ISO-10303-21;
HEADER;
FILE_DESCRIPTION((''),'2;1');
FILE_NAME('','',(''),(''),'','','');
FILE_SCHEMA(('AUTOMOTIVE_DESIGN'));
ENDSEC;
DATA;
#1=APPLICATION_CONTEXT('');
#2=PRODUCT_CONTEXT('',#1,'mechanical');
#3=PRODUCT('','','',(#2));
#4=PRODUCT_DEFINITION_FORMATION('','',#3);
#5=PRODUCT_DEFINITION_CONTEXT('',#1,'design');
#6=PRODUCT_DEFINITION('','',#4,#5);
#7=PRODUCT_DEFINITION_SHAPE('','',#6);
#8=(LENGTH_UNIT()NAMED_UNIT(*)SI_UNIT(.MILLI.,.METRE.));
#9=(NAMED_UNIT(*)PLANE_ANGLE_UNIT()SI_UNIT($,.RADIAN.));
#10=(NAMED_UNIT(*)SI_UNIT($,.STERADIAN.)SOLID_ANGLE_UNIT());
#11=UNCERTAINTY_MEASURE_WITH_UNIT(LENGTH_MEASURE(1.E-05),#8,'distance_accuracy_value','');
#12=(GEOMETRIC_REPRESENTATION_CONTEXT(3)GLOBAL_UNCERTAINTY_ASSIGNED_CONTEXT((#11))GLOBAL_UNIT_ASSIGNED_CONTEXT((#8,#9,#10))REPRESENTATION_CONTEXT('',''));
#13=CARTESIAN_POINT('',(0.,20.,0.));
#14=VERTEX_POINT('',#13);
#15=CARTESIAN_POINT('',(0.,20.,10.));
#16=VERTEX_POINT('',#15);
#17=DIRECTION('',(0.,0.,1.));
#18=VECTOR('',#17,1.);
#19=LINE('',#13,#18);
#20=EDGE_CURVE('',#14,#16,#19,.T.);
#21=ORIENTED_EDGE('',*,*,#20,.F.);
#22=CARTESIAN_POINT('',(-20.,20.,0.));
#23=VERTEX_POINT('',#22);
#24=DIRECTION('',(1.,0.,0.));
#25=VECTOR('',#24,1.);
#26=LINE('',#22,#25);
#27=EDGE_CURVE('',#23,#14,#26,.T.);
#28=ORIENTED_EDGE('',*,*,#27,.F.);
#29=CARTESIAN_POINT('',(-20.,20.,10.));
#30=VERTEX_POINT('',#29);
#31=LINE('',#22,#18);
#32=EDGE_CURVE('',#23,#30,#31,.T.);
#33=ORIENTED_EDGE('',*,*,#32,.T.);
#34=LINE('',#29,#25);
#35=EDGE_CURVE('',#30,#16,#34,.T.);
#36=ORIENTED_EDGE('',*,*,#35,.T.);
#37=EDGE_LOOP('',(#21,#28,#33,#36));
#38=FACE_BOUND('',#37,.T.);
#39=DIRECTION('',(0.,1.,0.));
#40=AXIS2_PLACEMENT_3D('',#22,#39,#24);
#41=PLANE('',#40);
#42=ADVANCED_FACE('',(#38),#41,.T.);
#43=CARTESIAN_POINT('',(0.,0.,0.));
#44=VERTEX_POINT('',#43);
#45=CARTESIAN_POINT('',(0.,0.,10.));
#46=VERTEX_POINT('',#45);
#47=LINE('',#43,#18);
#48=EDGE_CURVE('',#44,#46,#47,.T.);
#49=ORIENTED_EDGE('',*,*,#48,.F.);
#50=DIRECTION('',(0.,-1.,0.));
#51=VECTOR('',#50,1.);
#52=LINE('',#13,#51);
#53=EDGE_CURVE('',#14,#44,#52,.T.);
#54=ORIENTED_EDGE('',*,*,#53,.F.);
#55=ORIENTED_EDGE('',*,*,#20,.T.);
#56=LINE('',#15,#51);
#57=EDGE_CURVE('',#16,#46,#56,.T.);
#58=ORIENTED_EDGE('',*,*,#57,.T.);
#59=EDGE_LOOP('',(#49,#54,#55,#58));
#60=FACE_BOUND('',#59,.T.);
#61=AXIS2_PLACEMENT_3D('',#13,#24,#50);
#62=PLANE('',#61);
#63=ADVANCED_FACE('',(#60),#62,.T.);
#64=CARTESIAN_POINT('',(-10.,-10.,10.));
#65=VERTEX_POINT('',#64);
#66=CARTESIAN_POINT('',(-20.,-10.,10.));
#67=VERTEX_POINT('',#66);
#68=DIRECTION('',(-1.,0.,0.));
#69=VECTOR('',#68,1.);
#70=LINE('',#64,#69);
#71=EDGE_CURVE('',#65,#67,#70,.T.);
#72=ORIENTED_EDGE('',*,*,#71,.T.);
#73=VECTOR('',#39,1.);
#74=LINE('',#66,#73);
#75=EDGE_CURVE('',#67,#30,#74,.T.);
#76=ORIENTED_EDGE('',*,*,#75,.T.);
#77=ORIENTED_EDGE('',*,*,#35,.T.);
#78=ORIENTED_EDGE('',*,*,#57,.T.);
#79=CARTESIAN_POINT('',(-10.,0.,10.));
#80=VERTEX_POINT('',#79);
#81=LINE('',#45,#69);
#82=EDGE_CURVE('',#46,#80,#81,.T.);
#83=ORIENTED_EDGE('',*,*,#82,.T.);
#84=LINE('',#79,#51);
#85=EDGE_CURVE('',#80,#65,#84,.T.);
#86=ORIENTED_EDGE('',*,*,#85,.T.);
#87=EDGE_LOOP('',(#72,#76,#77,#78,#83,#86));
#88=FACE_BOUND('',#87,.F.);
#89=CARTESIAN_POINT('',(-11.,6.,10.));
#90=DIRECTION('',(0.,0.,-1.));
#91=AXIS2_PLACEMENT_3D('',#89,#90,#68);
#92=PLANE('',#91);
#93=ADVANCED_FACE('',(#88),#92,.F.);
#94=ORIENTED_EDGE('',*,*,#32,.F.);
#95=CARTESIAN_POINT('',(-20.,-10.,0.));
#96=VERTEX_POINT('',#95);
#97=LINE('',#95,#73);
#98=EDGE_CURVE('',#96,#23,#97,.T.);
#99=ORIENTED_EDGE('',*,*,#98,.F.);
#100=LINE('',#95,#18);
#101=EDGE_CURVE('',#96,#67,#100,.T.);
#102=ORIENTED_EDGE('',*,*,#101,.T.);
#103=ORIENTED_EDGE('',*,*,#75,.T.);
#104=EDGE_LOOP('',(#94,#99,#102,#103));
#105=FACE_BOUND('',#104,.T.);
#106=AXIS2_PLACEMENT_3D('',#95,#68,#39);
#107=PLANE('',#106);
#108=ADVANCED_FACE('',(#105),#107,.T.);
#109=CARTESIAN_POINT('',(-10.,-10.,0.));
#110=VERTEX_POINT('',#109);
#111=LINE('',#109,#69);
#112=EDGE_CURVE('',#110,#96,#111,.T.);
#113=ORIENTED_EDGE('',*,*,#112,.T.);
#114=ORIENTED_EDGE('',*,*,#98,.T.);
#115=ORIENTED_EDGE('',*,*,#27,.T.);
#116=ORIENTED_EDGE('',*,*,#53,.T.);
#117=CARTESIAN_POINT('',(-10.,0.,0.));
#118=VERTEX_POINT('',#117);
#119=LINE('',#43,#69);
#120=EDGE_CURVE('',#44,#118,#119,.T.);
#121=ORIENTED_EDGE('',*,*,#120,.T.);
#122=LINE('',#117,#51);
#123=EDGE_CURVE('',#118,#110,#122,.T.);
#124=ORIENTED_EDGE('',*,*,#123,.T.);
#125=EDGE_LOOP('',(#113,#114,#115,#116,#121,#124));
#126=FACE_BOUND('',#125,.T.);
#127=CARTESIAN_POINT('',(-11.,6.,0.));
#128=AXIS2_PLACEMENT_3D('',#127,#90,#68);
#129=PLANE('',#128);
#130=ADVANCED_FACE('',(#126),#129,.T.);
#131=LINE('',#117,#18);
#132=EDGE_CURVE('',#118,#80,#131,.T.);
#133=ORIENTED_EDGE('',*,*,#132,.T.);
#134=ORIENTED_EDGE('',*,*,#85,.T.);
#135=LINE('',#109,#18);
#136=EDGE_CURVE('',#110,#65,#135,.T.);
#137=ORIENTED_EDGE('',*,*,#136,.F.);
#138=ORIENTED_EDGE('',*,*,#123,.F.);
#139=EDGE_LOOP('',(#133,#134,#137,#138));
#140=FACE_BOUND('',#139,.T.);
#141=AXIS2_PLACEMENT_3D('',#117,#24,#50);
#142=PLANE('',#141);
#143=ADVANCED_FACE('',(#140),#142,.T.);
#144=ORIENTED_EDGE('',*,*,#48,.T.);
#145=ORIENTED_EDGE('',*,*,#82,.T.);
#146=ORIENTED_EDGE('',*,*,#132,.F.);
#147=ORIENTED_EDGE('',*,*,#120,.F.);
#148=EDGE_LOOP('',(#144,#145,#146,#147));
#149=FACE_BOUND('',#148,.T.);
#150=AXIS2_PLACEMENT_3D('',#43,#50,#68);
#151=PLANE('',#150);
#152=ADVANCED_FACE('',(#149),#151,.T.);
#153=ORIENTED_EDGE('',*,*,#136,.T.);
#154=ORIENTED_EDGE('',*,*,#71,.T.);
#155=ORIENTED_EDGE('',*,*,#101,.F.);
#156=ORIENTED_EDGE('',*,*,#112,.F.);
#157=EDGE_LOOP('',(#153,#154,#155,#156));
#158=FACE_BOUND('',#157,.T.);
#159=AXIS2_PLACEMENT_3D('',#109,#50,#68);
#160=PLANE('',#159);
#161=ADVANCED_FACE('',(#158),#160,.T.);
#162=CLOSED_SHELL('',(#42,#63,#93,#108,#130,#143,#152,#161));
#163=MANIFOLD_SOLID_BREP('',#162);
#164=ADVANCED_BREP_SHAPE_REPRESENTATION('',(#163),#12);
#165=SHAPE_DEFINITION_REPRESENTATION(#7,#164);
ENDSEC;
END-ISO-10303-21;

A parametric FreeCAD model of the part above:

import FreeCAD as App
import Part
import Sketcher
Q = App.Units.Quantity


def add_polygon(sketch, points):
    """Adds a closed chain of lines whose ends are joined by coincident constraints."""
    first, n = sketch.GeometryCount, len(points)
    for a, b in zip(points, points[1:] + points[:1]):
        sketch.addGeometry(Part.LineSegment(App.Vector(*a, 0), App.Vector(*b, 0)), False)
    for i in range(n):
        sketch.addConstraint(Sketcher.Constraint("Coincident", first + i, 2, first + (i + 1) % n, 1))

doc = App.newDocument("Part")
body = doc.addObject("PartDesign::Body", "Body")

# Sketch on XY plane
sketch1 = body.newObject("Sketcher::SketchObject", "Sketch")
sketch1.AttachmentSupport = (doc.getObject("XY_Plane"), [""])
sketch1.MapMode = "FlatFace"
add_polygon(sketch1, [(-20, 20), (-20, -10), (-10, -10), (-10, 0), (0, 0), (0, 20)])  # lines 0-5
sketch1.addConstraint(Sketcher.Constraint("Vertical", 0))
sketch1.addConstraint(Sketcher.Constraint("Horizontal", 1))
sketch1.addConstraint(Sketcher.Constraint("Vertical", 2))
sketch1.addConstraint(Sketcher.Constraint("Horizontal", 3))
sketch1.addConstraint(Sketcher.Constraint("Vertical", 4))
sketch1.addConstraint(Sketcher.Constraint("Horizontal", 5))
sketch1.addConstraint(Sketcher.Constraint("Coincident", 3, 2, -1, 1))
sketch1.addConstraint(Sketcher.Constraint("Equal", 1, 3))
sketch1.addConstraint(Sketcher.Constraint("Equal", 3, 2))
sketch1.addConstraint(Sketcher.Constraint("Equal", 5, 4))
sketch1.addConstraint(Sketcher.Constraint("DistanceX", 1, 1, 1, 2, Q("10 mm")))
pad1 = body.newObject("PartDesign::Pad", "Pad")
pad1.Profile = sketch1
pad1.Length = 10

doc.recompute()
